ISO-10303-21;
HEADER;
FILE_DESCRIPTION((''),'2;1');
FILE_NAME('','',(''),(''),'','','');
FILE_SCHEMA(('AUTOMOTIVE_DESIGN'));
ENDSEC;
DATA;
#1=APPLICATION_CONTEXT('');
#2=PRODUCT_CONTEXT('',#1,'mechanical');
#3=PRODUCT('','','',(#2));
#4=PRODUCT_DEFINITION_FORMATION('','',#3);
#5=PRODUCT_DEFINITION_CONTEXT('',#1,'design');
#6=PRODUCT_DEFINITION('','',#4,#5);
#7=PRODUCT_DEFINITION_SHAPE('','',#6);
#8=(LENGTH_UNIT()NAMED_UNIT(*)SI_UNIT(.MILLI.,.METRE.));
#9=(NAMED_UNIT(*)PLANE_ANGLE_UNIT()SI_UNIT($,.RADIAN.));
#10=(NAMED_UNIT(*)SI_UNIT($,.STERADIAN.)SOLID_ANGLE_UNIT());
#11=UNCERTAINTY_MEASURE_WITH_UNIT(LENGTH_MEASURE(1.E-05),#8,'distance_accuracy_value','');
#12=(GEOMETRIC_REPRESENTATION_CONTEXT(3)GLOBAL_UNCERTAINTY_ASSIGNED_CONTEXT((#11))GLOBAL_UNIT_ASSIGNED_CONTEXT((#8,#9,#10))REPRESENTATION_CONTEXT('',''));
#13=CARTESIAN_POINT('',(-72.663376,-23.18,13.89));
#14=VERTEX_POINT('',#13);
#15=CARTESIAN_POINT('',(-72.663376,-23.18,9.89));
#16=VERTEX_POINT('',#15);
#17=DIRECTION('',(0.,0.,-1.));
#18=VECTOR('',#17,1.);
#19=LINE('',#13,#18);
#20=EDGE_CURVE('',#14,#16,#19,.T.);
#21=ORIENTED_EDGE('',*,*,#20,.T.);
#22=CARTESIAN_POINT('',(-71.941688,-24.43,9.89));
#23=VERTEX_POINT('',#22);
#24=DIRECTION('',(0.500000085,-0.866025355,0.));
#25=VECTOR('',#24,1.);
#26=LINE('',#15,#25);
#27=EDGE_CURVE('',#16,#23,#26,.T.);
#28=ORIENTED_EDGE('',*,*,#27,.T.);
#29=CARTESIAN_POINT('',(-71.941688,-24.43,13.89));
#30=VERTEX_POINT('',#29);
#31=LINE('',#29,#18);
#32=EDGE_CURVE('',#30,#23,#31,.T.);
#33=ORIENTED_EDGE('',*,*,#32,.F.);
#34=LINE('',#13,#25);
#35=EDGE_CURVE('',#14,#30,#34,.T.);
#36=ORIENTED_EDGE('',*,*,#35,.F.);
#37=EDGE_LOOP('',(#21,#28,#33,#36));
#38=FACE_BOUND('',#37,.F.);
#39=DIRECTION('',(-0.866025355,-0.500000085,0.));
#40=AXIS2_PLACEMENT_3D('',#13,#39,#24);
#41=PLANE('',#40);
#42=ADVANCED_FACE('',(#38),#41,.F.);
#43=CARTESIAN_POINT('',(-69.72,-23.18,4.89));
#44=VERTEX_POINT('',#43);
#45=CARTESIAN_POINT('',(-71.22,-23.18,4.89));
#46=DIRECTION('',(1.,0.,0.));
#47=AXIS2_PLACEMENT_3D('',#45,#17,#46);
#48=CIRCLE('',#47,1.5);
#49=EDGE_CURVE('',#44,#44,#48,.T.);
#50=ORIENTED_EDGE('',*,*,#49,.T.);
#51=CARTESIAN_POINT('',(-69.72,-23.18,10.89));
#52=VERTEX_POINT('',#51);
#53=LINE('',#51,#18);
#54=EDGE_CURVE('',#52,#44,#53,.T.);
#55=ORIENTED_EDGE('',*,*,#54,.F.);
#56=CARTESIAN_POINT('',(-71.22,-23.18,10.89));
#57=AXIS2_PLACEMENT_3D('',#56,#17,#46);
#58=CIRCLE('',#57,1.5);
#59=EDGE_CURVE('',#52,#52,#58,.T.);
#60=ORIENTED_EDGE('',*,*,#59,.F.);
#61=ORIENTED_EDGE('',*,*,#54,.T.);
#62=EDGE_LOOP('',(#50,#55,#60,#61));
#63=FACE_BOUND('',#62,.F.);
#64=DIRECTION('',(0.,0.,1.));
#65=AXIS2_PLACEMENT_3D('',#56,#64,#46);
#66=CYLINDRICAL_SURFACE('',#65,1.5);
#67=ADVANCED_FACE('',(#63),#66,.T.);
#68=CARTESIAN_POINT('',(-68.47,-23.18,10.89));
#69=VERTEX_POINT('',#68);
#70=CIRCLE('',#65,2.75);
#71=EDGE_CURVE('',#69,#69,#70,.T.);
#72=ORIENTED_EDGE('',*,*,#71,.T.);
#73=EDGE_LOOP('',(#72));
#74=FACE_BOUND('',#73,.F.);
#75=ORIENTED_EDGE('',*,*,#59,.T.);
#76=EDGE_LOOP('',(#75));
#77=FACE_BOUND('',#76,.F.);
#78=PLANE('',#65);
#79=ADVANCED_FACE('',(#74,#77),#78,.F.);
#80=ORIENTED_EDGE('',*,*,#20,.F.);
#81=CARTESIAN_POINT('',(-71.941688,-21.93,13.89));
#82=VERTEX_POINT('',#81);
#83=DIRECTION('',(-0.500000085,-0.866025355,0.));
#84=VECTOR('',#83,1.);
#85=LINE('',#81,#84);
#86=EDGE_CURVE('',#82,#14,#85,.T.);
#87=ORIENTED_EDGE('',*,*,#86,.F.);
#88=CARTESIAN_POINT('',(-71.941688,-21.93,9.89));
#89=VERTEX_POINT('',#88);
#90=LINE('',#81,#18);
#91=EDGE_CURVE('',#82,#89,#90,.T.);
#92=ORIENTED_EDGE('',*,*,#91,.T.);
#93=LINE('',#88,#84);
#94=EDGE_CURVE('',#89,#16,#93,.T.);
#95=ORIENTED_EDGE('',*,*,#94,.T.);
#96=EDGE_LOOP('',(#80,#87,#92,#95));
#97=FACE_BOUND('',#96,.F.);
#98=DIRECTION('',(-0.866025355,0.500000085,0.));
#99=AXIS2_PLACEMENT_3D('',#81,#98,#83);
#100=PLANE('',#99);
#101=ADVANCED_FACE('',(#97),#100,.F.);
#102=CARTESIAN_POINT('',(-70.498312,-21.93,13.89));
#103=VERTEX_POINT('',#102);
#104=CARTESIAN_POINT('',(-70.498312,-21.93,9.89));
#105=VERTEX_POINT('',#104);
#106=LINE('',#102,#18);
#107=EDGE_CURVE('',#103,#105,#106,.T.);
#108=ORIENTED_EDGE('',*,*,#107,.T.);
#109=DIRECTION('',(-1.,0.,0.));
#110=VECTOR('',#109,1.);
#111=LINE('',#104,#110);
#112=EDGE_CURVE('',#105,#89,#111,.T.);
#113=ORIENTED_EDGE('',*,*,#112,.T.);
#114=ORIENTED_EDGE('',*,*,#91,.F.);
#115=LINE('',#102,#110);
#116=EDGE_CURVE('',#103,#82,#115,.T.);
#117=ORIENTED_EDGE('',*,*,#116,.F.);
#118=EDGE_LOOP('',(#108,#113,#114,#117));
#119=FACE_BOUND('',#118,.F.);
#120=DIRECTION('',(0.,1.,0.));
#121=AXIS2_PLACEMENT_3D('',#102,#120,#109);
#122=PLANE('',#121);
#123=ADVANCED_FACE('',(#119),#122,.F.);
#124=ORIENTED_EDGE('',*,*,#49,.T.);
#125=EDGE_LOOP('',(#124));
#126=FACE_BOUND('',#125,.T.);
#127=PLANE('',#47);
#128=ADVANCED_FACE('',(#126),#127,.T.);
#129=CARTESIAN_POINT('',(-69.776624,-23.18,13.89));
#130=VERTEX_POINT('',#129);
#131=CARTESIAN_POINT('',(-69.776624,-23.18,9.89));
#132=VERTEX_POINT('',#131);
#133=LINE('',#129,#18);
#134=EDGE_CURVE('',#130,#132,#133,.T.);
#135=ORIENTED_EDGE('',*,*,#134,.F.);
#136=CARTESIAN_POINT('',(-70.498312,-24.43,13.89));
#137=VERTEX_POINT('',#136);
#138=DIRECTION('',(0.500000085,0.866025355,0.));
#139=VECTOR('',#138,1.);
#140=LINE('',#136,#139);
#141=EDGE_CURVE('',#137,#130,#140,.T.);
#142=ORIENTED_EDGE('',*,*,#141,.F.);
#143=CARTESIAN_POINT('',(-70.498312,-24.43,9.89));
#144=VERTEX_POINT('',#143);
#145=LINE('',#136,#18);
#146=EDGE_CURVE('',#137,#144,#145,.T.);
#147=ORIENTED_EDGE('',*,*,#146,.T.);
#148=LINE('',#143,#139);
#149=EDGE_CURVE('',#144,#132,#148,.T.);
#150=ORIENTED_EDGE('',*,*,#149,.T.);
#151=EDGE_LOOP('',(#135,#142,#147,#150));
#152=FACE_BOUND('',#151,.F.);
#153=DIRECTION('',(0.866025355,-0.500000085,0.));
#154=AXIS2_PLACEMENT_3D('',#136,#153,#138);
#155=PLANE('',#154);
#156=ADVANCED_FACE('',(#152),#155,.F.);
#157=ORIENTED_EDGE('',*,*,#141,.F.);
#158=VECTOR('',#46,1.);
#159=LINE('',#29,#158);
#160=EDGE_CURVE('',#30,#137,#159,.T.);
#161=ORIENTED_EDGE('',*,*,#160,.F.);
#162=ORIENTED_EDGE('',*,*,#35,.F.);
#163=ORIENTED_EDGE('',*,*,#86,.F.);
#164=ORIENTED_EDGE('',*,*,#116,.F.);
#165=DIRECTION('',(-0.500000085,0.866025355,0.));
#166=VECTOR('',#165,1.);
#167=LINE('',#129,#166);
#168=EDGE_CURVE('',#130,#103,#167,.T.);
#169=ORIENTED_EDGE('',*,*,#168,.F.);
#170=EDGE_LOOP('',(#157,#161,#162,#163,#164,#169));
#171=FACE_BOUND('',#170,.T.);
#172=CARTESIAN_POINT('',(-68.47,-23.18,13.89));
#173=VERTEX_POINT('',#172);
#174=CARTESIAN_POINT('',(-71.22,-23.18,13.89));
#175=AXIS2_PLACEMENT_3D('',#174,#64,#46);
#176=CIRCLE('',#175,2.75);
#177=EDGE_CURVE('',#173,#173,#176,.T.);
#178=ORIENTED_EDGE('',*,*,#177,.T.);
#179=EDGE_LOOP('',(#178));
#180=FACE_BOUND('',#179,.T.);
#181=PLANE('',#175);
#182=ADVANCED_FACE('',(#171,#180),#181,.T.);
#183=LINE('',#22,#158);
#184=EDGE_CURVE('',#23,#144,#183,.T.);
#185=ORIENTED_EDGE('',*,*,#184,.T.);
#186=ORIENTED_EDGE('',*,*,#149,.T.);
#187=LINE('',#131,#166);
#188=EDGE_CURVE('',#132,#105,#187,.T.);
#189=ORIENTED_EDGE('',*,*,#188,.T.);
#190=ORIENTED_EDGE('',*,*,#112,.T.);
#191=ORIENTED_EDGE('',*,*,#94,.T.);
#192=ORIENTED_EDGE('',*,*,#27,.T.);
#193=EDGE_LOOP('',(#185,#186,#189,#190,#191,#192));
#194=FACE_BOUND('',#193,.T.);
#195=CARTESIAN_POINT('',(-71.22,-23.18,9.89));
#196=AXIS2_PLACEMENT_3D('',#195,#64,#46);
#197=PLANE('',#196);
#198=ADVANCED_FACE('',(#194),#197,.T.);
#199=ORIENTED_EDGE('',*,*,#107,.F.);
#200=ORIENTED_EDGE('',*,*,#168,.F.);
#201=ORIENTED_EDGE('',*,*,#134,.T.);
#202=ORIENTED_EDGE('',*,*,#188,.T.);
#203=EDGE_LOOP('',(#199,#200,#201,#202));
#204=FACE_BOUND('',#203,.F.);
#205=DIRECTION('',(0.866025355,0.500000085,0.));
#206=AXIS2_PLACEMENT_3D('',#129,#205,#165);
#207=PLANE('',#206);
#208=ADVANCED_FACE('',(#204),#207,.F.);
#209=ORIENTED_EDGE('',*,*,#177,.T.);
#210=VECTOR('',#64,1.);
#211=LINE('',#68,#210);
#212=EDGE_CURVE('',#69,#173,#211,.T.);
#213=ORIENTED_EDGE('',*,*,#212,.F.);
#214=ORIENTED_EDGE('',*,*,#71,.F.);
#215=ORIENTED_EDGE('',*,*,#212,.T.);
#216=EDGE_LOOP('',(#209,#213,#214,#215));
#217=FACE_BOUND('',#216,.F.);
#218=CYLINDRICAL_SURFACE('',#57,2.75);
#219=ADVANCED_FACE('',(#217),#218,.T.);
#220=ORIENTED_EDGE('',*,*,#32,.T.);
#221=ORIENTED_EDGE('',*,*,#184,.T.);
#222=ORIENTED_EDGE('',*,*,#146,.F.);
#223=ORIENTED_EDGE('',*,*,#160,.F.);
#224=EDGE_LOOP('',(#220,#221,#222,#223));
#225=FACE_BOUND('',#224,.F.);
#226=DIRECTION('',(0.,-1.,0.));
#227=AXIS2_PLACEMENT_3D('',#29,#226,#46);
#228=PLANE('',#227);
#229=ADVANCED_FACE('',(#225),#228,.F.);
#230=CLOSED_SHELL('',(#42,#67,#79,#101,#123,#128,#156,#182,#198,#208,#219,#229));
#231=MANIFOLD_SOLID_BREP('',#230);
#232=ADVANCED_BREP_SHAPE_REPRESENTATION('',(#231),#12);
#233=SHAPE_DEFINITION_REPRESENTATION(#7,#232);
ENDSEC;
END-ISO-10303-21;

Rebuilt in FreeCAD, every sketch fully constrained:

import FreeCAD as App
import Part
import Sketcher
from FreeCAD import Vector
Q = App.Units.Quantity


def add_polygon(sketch, points):
    """Adds a closed chain of lines whose ends are joined by coincident constraints."""
    first, n = sketch.GeometryCount, len(points)
    for a, b in zip(points, points[1:] + points[:1]):
        sketch.addGeometry(Part.LineSegment(App.Vector(*a, 0), App.Vector(*b, 0)), False)
    for i in range(n):
        sketch.addConstraint(Sketcher.Constraint("Coincident", first + i, 2, first + (i + 1) % n, 1))

doc = App.newDocument("Part")
body = doc.addObject("PartDesign::Body", "Body")

# Sketch on XY plane
sketch1 = body.newObject("Sketcher::SketchObject", "Sketch")
sketch1.AttachmentSupport = (doc.getObject("XY_Plane"), [""])
sketch1.MapMode = "FlatFace"
sketch1.addGeometry(Part.Circle(Vector(0, 0, 0), Vector(0, 0, 1), 2.75), False)
sketch1.addConstraint([
    Sketcher.Constraint("Coincident", 0, 3, -1, 1),
    Sketcher.Constraint("Diameter", 0, 5.5),
])
pad1 = body.newObject("PartDesign::Pad", "Pad")
pad1.Profile = sketch1
pad1.Length = 3

# Sketch on XY plane
sketch2 = body.newObject("Sketcher::SketchObject", "Sketch001")
sketch2.AttachmentSupport = (doc.getObject("XY_Plane"), [""])
sketch2.MapMode = "FlatFace"
sketch2.addGeometry(Part.Circle(Vector(0, 0, 0), Vector(0, 0, 1), 1.5), False)
sketch2.addConstraint([
    Sketcher.Constraint("Coincident", 0, 3, -1, 1),
    Sketcher.Constraint("Diameter", 0, 3.0),
])
pad2 = body.newObject("PartDesign::Pad", "Pad001")
pad2.Profile = sketch2
pad2.Length = 6
pad2.Reversed = True

# Sketch on XY plane
sketch3 = body.newObject("Sketcher::SketchObject", "Sketch002")
sketch3.AttachmentSupport = (doc.getObject("XY_Plane"), [""])
sketch3.MapMode = "FlatFace"
sketch3.AttachmentOffset = App.Placement(Vector(0, 0, 3), App.Rotation())
add_polygon(sketch3, [(0.721688, -1.25), (1.443376, 0), (0.721688, 1.25), (-0.721688, 1.25), (-1.443376, 0), (-0.721688, -1.25)])  # lines 0-5
sketch3.addConstraint([
    Sketcher.Constraint("Horizontal", 2),
    Sketcher.Constraint("Horizontal", 5),
    Sketcher.Constraint("Symmetric", 0, 2, 3, 2, -1, 1),
    Sketcher.Constraint("Symmetric", 1, 2, 4, 2, -1, 1),
    Sketcher.Constraint("PointOnObject", 0, 2, -1),
    Sketcher.Constraint("Parallel", 0, 3),
    Sketcher.Constraint("Vertical", 2, 2, 4, 2),
    Sketcher.Constraint("Angle", 0, Q("59.999994 deg")),
    Sketcher.Constraint("DistanceY", 4, 2, 2, 2, 2.5),
    Sketcher.Constraint("DistanceX", 2, 2, 2, 1, 1.443376),
])
pocket1 = body.newObject("PartDesign::Pocket", "Pocket")
pocket1.Profile = sketch3
pocket1.Length = 4
body2 = doc.addObject("PartDesign::Body", "Body001")
doc.recompute()

body.Placement = App.Placement(Vector(-71.22, -23.18, 10.89), App.Rotation(Vector(0, 0, 1), 0))
boolean = body2.newObject("PartDesign::Boolean", "Boolean")
boolean.Type = "Fuse"
boolean.addObjects([body])

doc.recompute()
